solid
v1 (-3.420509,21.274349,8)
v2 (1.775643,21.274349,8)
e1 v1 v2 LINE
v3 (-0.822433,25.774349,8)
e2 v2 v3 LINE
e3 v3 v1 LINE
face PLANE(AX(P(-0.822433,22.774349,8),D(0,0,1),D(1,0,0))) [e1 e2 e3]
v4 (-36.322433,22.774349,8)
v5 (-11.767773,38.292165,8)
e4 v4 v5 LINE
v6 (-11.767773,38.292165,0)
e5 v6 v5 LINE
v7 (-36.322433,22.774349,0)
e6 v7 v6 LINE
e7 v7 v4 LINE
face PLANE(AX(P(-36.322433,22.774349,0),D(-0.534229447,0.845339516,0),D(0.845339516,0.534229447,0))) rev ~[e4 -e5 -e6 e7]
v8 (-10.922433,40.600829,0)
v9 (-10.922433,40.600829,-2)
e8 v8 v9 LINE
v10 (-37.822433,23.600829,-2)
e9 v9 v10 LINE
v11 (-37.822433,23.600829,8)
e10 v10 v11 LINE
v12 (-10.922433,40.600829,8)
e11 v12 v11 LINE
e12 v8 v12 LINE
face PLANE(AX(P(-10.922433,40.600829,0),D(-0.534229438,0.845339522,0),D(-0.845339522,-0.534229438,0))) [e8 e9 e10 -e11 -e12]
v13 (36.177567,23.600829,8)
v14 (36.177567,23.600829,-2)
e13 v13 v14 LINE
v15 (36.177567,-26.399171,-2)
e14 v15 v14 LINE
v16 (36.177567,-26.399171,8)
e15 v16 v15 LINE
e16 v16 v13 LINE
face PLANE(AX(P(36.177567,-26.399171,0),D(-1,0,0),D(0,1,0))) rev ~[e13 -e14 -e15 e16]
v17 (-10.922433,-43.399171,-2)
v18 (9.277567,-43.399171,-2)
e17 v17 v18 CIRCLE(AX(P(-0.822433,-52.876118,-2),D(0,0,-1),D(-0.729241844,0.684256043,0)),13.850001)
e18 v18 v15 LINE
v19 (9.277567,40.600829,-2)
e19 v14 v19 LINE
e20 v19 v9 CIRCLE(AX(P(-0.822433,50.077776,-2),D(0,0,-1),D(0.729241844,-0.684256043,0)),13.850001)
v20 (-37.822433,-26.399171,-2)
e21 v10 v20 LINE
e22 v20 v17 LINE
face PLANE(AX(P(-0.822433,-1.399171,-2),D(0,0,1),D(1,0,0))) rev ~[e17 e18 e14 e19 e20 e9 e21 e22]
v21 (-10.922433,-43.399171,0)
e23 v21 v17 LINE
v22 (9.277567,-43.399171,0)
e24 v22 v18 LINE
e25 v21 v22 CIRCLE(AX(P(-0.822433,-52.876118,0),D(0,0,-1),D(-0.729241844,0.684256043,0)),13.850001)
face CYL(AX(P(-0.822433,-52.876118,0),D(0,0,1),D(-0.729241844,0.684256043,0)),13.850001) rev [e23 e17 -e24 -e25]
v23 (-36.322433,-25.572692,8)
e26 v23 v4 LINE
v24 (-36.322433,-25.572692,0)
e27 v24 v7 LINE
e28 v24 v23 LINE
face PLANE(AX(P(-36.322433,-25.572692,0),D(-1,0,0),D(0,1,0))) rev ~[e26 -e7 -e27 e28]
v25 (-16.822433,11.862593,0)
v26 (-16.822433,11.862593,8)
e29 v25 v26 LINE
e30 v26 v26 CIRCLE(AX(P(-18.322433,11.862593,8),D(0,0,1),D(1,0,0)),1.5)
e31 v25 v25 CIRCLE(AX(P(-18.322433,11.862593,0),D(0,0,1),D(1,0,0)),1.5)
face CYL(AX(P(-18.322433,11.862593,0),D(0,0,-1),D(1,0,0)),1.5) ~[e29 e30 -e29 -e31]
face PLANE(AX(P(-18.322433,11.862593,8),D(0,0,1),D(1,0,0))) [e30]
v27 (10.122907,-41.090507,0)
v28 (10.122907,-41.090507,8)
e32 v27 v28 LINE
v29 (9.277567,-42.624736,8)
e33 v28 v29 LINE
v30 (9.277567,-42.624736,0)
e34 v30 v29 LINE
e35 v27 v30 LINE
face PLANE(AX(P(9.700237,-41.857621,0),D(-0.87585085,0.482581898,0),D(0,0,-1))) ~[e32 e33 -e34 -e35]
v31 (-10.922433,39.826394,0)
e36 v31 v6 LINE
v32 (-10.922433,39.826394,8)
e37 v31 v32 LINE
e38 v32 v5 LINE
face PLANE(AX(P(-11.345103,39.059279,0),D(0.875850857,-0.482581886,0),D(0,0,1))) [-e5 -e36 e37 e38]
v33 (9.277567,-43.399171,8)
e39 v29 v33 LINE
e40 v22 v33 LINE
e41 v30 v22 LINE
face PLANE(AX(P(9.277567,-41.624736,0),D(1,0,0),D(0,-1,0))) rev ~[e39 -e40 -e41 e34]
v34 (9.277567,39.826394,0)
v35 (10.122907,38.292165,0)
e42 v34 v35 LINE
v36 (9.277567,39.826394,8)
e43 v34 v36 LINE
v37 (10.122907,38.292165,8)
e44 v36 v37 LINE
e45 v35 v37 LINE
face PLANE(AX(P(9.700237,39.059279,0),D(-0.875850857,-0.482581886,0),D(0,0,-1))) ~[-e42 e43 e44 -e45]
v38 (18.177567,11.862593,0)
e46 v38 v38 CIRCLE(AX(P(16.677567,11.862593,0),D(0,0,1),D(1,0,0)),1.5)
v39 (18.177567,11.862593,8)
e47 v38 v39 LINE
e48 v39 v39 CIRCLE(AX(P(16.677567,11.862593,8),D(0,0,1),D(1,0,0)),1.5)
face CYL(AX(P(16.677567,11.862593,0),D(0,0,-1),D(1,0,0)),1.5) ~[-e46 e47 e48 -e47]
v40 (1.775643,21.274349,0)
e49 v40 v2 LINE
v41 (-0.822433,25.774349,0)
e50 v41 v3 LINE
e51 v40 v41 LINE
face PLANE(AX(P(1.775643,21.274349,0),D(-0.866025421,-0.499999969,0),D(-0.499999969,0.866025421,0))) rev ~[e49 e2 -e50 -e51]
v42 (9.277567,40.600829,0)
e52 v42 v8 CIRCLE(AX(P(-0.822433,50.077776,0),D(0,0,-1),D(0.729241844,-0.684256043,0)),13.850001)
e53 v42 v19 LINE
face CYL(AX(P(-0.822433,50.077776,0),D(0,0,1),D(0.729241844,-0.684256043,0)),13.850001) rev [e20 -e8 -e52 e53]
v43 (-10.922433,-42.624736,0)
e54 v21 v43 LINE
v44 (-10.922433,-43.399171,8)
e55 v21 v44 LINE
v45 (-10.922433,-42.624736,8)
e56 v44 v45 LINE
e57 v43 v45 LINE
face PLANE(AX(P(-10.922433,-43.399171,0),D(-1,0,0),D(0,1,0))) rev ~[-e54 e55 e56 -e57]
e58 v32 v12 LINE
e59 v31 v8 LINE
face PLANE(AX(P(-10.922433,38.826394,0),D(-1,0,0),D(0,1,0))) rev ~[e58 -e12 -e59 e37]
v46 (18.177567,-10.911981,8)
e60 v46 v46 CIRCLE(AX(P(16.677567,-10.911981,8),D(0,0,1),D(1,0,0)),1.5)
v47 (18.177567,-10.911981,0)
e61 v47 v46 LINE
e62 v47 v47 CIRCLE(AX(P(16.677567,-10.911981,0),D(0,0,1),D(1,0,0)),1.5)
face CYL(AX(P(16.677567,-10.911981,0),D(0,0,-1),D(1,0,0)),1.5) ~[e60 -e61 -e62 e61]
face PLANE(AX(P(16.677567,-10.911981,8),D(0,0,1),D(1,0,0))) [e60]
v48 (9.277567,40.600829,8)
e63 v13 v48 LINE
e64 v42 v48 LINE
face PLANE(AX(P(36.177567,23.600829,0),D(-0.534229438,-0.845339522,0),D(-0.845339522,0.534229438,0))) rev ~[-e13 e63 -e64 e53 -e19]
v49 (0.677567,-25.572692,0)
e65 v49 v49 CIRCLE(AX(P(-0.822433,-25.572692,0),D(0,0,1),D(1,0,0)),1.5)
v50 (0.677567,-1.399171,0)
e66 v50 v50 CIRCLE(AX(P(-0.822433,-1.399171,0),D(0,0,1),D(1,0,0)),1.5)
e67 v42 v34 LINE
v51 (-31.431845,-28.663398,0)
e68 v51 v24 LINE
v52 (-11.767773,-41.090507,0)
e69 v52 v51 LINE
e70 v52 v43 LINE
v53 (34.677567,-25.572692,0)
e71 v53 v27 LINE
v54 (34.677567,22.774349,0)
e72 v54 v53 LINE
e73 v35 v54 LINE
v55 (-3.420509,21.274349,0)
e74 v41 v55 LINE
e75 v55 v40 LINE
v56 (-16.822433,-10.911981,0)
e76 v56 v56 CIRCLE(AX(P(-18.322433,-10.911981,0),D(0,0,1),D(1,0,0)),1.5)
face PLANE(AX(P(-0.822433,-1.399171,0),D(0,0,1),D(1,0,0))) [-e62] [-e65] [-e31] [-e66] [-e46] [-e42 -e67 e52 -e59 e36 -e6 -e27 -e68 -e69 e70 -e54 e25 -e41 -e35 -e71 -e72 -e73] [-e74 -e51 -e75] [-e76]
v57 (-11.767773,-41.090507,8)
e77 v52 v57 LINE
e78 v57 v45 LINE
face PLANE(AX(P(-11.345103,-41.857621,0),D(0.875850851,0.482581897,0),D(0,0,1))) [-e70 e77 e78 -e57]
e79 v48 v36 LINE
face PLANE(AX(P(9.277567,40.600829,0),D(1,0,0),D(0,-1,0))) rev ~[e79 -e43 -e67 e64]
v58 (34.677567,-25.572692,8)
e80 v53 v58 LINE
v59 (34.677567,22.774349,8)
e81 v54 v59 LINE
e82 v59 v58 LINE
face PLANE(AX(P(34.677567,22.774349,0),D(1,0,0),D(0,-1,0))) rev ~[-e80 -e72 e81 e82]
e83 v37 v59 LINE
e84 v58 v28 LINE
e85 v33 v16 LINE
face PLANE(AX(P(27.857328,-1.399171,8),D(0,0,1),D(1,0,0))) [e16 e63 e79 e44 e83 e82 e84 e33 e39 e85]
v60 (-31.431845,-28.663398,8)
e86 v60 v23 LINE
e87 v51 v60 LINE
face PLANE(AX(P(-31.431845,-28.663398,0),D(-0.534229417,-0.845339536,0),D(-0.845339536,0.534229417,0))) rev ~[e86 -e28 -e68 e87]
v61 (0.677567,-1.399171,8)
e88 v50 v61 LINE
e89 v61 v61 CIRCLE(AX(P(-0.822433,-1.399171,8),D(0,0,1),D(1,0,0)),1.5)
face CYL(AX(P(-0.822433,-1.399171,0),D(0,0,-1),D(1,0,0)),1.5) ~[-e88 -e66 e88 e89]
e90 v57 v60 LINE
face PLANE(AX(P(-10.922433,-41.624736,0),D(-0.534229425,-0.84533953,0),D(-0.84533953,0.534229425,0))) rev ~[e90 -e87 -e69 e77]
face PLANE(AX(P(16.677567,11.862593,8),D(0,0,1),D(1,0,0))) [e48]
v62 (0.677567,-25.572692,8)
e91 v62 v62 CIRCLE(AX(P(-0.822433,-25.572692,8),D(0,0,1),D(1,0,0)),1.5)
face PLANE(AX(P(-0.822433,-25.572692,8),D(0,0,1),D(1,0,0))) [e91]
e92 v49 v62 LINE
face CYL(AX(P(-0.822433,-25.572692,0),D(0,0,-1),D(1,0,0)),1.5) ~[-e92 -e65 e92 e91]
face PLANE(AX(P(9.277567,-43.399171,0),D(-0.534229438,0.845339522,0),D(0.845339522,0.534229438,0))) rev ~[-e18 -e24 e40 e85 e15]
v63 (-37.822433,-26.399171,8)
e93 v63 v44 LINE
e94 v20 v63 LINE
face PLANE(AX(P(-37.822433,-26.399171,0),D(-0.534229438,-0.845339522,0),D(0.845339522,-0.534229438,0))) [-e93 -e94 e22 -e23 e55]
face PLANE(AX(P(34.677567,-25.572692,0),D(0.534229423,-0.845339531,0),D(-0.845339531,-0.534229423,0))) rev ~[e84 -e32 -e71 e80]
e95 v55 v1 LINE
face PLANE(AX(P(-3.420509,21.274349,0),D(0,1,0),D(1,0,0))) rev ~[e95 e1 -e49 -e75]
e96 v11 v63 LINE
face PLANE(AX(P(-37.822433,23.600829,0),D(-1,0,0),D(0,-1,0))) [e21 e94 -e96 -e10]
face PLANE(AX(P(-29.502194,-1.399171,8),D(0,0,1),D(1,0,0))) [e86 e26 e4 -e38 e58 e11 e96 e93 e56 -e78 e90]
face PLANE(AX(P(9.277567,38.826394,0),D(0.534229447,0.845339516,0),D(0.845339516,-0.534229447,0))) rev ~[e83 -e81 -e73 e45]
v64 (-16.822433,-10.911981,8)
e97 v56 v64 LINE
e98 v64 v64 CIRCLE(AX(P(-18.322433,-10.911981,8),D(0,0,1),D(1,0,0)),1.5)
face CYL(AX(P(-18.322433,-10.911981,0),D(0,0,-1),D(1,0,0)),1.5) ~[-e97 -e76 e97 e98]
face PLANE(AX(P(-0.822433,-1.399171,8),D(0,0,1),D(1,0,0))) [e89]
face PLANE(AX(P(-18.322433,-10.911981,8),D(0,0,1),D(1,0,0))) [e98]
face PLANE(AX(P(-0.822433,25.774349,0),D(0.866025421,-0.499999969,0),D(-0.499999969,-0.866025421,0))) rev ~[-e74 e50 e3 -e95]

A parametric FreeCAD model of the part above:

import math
import FreeCAD as App
import Part
import Sketcher
from FreeCAD import Vector
Q = App.Units.Quantity


def edges_at(feature, points):
    """Names of the edges that pass closest to the given points."""
    edges = feature.Shape.Edges
    near = lambda p: min(range(len(edges)), key=lambda i: edges[i].distToShape(Part.Vertex(*p))[0])
    return sorted({f"Edge{near(p) + 1}" for p in points})

doc = App.newDocument("Part")
body = doc.addObject("PartDesign::Body", "Body")

sketch1 = body.newObject("Sketcher::SketchObject", "Sketch")
sketch1.AttachmentSupport = (doc.getObject("XY_Plane"), [""])
sketch1.MapMode = "FlatFace"
sketch1.addGeometry([
    Part.LineSegment(Vector(-10.922433, 40.600829, 0), Vector(-37.822433, 23.600829, 0)),
    Part.LineSegment(Vector(-37.822433, 23.600829, 0), Vector(-37.822433, -26.399171, 0)),
    Part.LineSegment(Vector(-37.822433, -26.399171, 0), Vector(-10.922433, -43.399171, 0)),
    Part.ArcOfCircle(Part.Circle(Vector(-0.822433, -52.876118, 0), Vector(0, 0, 1), 13.850001), math.radians(43.177127), math.radians(136.822873)),
    Part.LineSegment(Vector(9.277567, -43.399171, 0), Vector(36.177567, -26.399171, 0)),
    Part.LineSegment(Vector(36.177567, -26.399171, 0), Vector(36.177567, 23.600829, 0)),
    Part.LineSegment(Vector(36.177567, 23.600829, 0), Vector(9.277567, 40.600829, 0)),
    Part.ArcOfCircle(Part.Circle(Vector(-0.822433, 50.077776, 0), Vector(0, 0, 1), 13.850001), math.radians(-136.822873), math.radians(-43.177127)),
], False)
sketch1.addConstraint([
    Sketcher.Constraint("Coincident", 0, 2, 1, 1),
    Sketcher.Constraint("Coincident", 1, 2, 2, 1),
    Sketcher.Constraint("Coincident", 2, 2, 3, 2),
    Sketcher.Constraint("Coincident", 3, 1, 4, 1),
    Sketcher.Constraint("Coincident", 4, 2, 5, 1),
    Sketcher.Constraint("Coincident", 5, 2, 6, 1),
    Sketcher.Constraint("Coincident", 6, 2, 7, 2),
    Sketcher.Constraint("Coincident", 7, 1, 0, 1),
    Sketcher.Constraint("Vertical", 1),
    Sketcher.Constraint("Vertical", 5),
    Sketcher.Constraint("Equal", 3, 7),
    Sketcher.Constraint("Parallel", 0, 4),
    Sketcher.Constraint("Parallel", 2, 6),
    Sketcher.Constraint("Horizontal", 2, 2, 3, 1),
    Sketcher.Constraint("Horizontal", 1, 2, 4, 2),
    Sketcher.Constraint("Horizontal", 0, 2, 5, 2),
    Sketcher.Constraint("Horizontal", 6, 2, 7, 1),
    Sketcher.Constraint("Vertical", 3, 3, 7, 3),
    Sketcher.Constraint("Vertical", 3, 1, 6, 2),
    Sketcher.Constraint("DistanceY", 1, 2, 1, 1, 50.0),
    Sketcher.Constraint("Radius", 3, 13.850001),
    Sketcher.Constraint("DistanceX", 0, 2, 7, 3, 37.0),
    Sketcher.Constraint("DistanceY", 2, 2, 1, 2, 17.0),
    Sketcher.Constraint("DistanceX", 2, 2, 3, 3, 10.1),
    Sketcher.Constraint("DistanceY", -1, 1, 0, 2, 23.600829),
    Sketcher.Constraint("DistanceX", 3, 3, -1, 1, 0.822433),
])
pad1 = body.newObject("PartDesign::Pad", "Pad")
pad1.Profile = sketch1
pad1.Length = 2
pad1.Reversed = True

sketch2 = body.newObject("Sketcher::SketchObject", "Sketch001")
sketch2.AttachmentSupport = (doc.getObject("XY_Plane"), [""])
sketch2.MapMode = "FlatFace"
sketch2.addGeometry([
    Part.LineSegment(Vector(36.177567, 23.600829, 0), Vector(9.277567, 40.600829, 0)),
    Part.LineSegment(Vector(9.277567, 40.600829, 0), Vector(9.277567, 38.826394, 0)),
    Part.LineSegment(Vector(9.277567, 38.826394, 0), Vector(34.677567, 22.774349, 0)),
    Part.LineSegment(Vector(34.677567, 22.774349, 0), Vector(34.677567, -25.572692, 0)),
    Part.LineSegment(Vector(34.677567, -25.572692, 0), Vector(9.277567, -41.624736, 0)),
    Part.LineSegment(Vector(9.277567, -41.624736, 0), Vector(9.277567, -43.399171, 0)),
    Part.LineSegment(Vector(9.277567, -43.399171, 0), Vector(36.177567, -26.399171, 0)),
    Part.LineSegment(Vector(36.177567, -26.399171, 0), Vector(36.177567, 23.600829, 0)),
    Part.LineSegment(Vector(-10.922433, 38.826394, 0), Vector(-10.922433, 40.600829, 0)),
    Part.LineSegment(Vector(-10.922433, 40.600829, 0), Vector(-37.822433, 23.600829, 0)),
    Part.LineSegment(Vector(-37.822433, 23.600829, 0), Vector(-37.822433, -26.399171, 0)),
    Part.LineSegment(Vector(-37.822433, -26.399171, 0), Vector(-10.922433, -43.399171, 0)),
    Part.LineSegment(Vector(-10.922433, -43.399171, 0), Vector(-10.922433, -41.624736, 0)),
    Part.LineSegment(Vector(-10.922433, -41.624736, 0), Vector(-31.431845, -28.663398, 0)),
    Part.LineSegment(Vector(-31.431845, -28.663398, 0), Vector(-36.322433, -25.572692, 0)),
    Part.LineSegment(Vector(-36.322433, -25.572692, 0), Vector(-36.322433, 22.774349, 0)),
    Part.LineSegment(Vector(-36.322433, 22.774349, 0), Vector(-10.922433, 38.826394, 0)),
], False)
sketch2.addConstraint([
    Sketcher.Constraint("Coincident", 0, 2, 1, 1),
    Sketcher.Constraint("Coincident", 1, 2, 2, 1),
    Sketcher.Constraint("Coincident", 2, 2, 3, 1),
    Sketcher.Constraint("Coincident", 3, 2, 4, 1),
    Sketcher.Constraint("Coincident", 4, 2, 5, 1),
    Sketcher.Constraint("Coincident", 5, 2, 6, 1),
    Sketcher.Constraint("Coincident", 6, 2, 7, 1),
    Sketcher.Constraint("Coincident", 7, 2, 0, 1),
    Sketcher.Constraint("Coincident", 8, 2, 9, 1),
    Sketcher.Constraint("Coincident", 9, 2, 10, 1),
    Sketcher.Constraint("Coincident", 10, 2, 11, 1),
    Sketcher.Constraint("Coincident", 11, 2, 12, 1),
    Sketcher.Constraint("Coincident", 12, 2, 13, 1),
    Sketcher.Constraint("Coincident", 13, 2, 14, 1),
    Sketcher.Constraint("Coincident", 14, 2, 15, 1),
    Sketcher.Constraint("Coincident", 15, 2, 16, 1),
    Sketcher.Constraint("Coincident", 16, 2, 8, 1),
    Sketcher.Constraint("Vertical", 1),
    Sketcher.Constraint("Vertical", 3),
    Sketcher.Constraint("Vertical", 5),
    Sketcher.Constraint("Vertical", 7),
    Sketcher.Constraint("Vertical", 8),
    Sketcher.Constraint("Vertical", 10),
    Sketcher.Constraint("Vertical", 12),
    Sketcher.Constraint("Vertical", 15),
    Sketcher.Constraint("Parallel", 0, 2),
    Sketcher.Constraint("Parallel", 4, 6),
    Sketcher.Constraint("Parallel", 6, 9),
    Sketcher.Constraint("Parallel", 2, 11),
    Sketcher.Constraint("Parallel", 11, 13),
    Sketcher.Constraint("Parallel", 13, 14),
    Sketcher.Constraint("Parallel", 9, 16),
    Sketcher.Constraint("Horizontal", 0, 2, 8, 2),
    Sketcher.Constraint("Horizontal", 7, 2, 9, 2),
    Sketcher.Constraint("Horizontal", 6, 2, 10, 2),
    Sketcher.Constraint("Horizontal", 5, 2, 11, 2),
    Sketcher.Constraint("Horizontal", 4, 2, 12, 2),
    Sketcher.Constraint("Horizontal", 3, 2, 14, 2),
    Sketcher.Constraint("Horizontal", 2, 2, 15, 2),
    Sketcher.Constraint("Horizontal", 1, 2, 16, 2),
    Sketcher.Constraint("Vertical", 1, 2, 4, 2),
    Sketcher.Constraint("Equal", 1, 5),
    Sketcher.Constraint("DistanceY", 7, 1, 7, 2, 50.0),
    Sketcher.Constraint("DistanceY", 5, 2, 0, 2, 84.0),
    Sketcher.Constraint("DistanceX", 9, 2, 7, 2, 74.0),
    Sketcher.Constraint("DistanceX", 1, 2, 2, 2, 25.4),
    Sketcher.Constraint("DistanceX", 3, 2, 6, 2, 1.5),
    Sketcher.Constraint("DistanceY", 3, 2, 3, 1, 48.347041),
    Sketcher.Constraint("DistanceY", 13, 2, -1, 1, 28.663398),
    Sketcher.Constraint("DistanceY", -1, 1, 0, 2, 40.600829),
    Sketcher.Constraint("DistanceX", -1, 1, 0, 2, 9.277567),
])
pad2 = body.newObject("PartDesign::Pad", "Pad001")
pad2.Profile = sketch2
pad2.Length = 8

sketch3 = body.newObject("Sketcher::SketchObject", "Sketch002")
sketch3.AttachmentSupport = (doc.getObject("XY_Plane"), [""])
sketch3.MapMode = "FlatFace"
sketch3.addGeometry([
    Part.Circle(Vector(-0.822433, -25.572692, 0), Vector(0, 0, 1), 1.5),
    Part.Circle(Vector(-0.822433, -1.399171, 0), Vector(0, 0, 1), 1.5),
    Part.Circle(Vector(16.677567, -10.911981, 0), Vector(0, 0, 1), 1.5),
    Part.Circle(Vector(16.677567, 11.862593, 0), Vector(0, 0, 1), 1.5),
    Part.Circle(Vector(-18.322433, 11.862593, 0), Vector(0, 0, 1), 1.5),
    Part.Circle(Vector(-18.322433, -10.911981, 0), Vector(0, 0, 1), 1.5),
    Part.LineSegment(Vector(-3.420509, 21.274349, 0), Vector(1.775643, 21.274349, 0)),
    Part.LineSegment(Vector(1.775643, 21.274349, 0), Vector(-0.822433, 25.774349, 0)),
    Part.LineSegment(Vector(-0.822433, 25.774349, 0), Vector(-3.420509, 21.274349, 0)),
], False)
sketch3.addConstraint([
    Sketcher.Constraint("Coincident", 6, 2, 7, 1),
    Sketcher.Constraint("Coincident", 7, 2, 8, 1),
    Sketcher.Constraint("Coincident", 8, 2, 6, 1),
    Sketcher.Constraint("Horizontal", 6),
    Sketcher.Constraint("Equal", 0, 1),
    Sketcher.Constraint("Equal", 1, 2),
    Sketcher.Constraint("Equal", 2, 3),
    Sketcher.Constraint("Equal", 3, 4),
    Sketcher.Constraint("Equal", 4, 5),
    Sketcher.Constraint("Horizontal", 3, 3, 4, 3),
    Sketcher.Constraint("Horizontal", 2, 3, 5, 3),
    Sketcher.Constraint("Vertical", 0, 3, 1, 3),
    Sketcher.Constraint("Vertical", 2, 3, 3, 3),
    Sketcher.Constraint("Vertical", 4, 3, 5, 3),
    Sketcher.Constraint("Vertical", 1, 3, 7, 2),
    Sketcher.Constraint("Equal", 7, 8),
    Sketcher.Constraint("Diameter", 0, 3.0),
    Sketcher.Constraint("Angle", 7, Q("119.999998 deg")),
    Sketcher.Constraint("DistanceX", 4, 3, 3, 3, 35.0),
    Sketcher.Constraint("DistanceX", 1, 3, 2, 3, 17.5),
    Sketcher.Constraint("DistanceY", 6, 2, 7, 2, 4.5),
    Sketcher.Constraint("DistanceY", 0, 3, -1, 1, 25.572692),
    Sketcher.Constraint("DistanceY", 1, 3, -1, 1, 1.399171),
    Sketcher.Constraint("DistanceY", 2, 3, -1, 1, 10.911981),
    Sketcher.Constraint("DistanceY", -1, 1, 6, 2, 21.274349),
    Sketcher.Constraint("DistanceX", 8, 2, -1, 1, 3.420509),
    Sketcher.Constraint("DistanceY", -1, 1, 3, 3, 11.862593),
])
pad3 = body.newObject("PartDesign::Pad", "Pad002")
pad3.Profile = sketch3
pad3.Length = 8
doc.recompute()

chamfer = body.newObject("PartDesign::Chamfer", "Chamfer")
chamfer.Base = (pad3, edges_at(pad3, [
    (-10.922, 38.826, 4),
    (9.278, 38.826, 4),
    (-10.922, -41.625, 4),
    (9.278, -41.625, 4),
]))
chamfer.Size = 1

doc.recompute()
